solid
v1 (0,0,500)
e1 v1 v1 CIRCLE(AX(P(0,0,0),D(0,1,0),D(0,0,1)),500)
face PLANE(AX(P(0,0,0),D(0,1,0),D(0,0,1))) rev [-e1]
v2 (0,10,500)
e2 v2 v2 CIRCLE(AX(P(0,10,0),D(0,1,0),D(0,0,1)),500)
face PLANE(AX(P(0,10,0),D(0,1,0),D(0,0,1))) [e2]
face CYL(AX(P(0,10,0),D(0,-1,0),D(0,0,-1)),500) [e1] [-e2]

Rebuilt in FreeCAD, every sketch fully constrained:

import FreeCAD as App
import Part
import Sketcher
from FreeCAD import Vector
Q = App.Units.Quantity

doc = App.newDocument("Part")
body = doc.addObject("PartDesign::Body", "Body")

sketch1 = body.newObject("Sketcher::SketchObject", "Sketch")
sketch1.AttachmentSupport = (doc.getObject("XZ_Plane"), [""])
sketch1.MapMode = "FlatFace"
sketch1.addGeometry(Part.Circle(Vector(0, 0, 0), Vector(0, 0, 1), 500), False)
sketch1.addConstraint([
    Sketcher.Constraint("Coincident", 0, 3, -1, 1),
    Sketcher.Constraint("Diameter", 0, Q("1000 mm")),
])
pad1 = body.newObject("PartDesign::Pad", "Pad")
pad1.Profile = sketch1
pad1.Length = 10
pad1.Reversed = True

doc.recompute()
